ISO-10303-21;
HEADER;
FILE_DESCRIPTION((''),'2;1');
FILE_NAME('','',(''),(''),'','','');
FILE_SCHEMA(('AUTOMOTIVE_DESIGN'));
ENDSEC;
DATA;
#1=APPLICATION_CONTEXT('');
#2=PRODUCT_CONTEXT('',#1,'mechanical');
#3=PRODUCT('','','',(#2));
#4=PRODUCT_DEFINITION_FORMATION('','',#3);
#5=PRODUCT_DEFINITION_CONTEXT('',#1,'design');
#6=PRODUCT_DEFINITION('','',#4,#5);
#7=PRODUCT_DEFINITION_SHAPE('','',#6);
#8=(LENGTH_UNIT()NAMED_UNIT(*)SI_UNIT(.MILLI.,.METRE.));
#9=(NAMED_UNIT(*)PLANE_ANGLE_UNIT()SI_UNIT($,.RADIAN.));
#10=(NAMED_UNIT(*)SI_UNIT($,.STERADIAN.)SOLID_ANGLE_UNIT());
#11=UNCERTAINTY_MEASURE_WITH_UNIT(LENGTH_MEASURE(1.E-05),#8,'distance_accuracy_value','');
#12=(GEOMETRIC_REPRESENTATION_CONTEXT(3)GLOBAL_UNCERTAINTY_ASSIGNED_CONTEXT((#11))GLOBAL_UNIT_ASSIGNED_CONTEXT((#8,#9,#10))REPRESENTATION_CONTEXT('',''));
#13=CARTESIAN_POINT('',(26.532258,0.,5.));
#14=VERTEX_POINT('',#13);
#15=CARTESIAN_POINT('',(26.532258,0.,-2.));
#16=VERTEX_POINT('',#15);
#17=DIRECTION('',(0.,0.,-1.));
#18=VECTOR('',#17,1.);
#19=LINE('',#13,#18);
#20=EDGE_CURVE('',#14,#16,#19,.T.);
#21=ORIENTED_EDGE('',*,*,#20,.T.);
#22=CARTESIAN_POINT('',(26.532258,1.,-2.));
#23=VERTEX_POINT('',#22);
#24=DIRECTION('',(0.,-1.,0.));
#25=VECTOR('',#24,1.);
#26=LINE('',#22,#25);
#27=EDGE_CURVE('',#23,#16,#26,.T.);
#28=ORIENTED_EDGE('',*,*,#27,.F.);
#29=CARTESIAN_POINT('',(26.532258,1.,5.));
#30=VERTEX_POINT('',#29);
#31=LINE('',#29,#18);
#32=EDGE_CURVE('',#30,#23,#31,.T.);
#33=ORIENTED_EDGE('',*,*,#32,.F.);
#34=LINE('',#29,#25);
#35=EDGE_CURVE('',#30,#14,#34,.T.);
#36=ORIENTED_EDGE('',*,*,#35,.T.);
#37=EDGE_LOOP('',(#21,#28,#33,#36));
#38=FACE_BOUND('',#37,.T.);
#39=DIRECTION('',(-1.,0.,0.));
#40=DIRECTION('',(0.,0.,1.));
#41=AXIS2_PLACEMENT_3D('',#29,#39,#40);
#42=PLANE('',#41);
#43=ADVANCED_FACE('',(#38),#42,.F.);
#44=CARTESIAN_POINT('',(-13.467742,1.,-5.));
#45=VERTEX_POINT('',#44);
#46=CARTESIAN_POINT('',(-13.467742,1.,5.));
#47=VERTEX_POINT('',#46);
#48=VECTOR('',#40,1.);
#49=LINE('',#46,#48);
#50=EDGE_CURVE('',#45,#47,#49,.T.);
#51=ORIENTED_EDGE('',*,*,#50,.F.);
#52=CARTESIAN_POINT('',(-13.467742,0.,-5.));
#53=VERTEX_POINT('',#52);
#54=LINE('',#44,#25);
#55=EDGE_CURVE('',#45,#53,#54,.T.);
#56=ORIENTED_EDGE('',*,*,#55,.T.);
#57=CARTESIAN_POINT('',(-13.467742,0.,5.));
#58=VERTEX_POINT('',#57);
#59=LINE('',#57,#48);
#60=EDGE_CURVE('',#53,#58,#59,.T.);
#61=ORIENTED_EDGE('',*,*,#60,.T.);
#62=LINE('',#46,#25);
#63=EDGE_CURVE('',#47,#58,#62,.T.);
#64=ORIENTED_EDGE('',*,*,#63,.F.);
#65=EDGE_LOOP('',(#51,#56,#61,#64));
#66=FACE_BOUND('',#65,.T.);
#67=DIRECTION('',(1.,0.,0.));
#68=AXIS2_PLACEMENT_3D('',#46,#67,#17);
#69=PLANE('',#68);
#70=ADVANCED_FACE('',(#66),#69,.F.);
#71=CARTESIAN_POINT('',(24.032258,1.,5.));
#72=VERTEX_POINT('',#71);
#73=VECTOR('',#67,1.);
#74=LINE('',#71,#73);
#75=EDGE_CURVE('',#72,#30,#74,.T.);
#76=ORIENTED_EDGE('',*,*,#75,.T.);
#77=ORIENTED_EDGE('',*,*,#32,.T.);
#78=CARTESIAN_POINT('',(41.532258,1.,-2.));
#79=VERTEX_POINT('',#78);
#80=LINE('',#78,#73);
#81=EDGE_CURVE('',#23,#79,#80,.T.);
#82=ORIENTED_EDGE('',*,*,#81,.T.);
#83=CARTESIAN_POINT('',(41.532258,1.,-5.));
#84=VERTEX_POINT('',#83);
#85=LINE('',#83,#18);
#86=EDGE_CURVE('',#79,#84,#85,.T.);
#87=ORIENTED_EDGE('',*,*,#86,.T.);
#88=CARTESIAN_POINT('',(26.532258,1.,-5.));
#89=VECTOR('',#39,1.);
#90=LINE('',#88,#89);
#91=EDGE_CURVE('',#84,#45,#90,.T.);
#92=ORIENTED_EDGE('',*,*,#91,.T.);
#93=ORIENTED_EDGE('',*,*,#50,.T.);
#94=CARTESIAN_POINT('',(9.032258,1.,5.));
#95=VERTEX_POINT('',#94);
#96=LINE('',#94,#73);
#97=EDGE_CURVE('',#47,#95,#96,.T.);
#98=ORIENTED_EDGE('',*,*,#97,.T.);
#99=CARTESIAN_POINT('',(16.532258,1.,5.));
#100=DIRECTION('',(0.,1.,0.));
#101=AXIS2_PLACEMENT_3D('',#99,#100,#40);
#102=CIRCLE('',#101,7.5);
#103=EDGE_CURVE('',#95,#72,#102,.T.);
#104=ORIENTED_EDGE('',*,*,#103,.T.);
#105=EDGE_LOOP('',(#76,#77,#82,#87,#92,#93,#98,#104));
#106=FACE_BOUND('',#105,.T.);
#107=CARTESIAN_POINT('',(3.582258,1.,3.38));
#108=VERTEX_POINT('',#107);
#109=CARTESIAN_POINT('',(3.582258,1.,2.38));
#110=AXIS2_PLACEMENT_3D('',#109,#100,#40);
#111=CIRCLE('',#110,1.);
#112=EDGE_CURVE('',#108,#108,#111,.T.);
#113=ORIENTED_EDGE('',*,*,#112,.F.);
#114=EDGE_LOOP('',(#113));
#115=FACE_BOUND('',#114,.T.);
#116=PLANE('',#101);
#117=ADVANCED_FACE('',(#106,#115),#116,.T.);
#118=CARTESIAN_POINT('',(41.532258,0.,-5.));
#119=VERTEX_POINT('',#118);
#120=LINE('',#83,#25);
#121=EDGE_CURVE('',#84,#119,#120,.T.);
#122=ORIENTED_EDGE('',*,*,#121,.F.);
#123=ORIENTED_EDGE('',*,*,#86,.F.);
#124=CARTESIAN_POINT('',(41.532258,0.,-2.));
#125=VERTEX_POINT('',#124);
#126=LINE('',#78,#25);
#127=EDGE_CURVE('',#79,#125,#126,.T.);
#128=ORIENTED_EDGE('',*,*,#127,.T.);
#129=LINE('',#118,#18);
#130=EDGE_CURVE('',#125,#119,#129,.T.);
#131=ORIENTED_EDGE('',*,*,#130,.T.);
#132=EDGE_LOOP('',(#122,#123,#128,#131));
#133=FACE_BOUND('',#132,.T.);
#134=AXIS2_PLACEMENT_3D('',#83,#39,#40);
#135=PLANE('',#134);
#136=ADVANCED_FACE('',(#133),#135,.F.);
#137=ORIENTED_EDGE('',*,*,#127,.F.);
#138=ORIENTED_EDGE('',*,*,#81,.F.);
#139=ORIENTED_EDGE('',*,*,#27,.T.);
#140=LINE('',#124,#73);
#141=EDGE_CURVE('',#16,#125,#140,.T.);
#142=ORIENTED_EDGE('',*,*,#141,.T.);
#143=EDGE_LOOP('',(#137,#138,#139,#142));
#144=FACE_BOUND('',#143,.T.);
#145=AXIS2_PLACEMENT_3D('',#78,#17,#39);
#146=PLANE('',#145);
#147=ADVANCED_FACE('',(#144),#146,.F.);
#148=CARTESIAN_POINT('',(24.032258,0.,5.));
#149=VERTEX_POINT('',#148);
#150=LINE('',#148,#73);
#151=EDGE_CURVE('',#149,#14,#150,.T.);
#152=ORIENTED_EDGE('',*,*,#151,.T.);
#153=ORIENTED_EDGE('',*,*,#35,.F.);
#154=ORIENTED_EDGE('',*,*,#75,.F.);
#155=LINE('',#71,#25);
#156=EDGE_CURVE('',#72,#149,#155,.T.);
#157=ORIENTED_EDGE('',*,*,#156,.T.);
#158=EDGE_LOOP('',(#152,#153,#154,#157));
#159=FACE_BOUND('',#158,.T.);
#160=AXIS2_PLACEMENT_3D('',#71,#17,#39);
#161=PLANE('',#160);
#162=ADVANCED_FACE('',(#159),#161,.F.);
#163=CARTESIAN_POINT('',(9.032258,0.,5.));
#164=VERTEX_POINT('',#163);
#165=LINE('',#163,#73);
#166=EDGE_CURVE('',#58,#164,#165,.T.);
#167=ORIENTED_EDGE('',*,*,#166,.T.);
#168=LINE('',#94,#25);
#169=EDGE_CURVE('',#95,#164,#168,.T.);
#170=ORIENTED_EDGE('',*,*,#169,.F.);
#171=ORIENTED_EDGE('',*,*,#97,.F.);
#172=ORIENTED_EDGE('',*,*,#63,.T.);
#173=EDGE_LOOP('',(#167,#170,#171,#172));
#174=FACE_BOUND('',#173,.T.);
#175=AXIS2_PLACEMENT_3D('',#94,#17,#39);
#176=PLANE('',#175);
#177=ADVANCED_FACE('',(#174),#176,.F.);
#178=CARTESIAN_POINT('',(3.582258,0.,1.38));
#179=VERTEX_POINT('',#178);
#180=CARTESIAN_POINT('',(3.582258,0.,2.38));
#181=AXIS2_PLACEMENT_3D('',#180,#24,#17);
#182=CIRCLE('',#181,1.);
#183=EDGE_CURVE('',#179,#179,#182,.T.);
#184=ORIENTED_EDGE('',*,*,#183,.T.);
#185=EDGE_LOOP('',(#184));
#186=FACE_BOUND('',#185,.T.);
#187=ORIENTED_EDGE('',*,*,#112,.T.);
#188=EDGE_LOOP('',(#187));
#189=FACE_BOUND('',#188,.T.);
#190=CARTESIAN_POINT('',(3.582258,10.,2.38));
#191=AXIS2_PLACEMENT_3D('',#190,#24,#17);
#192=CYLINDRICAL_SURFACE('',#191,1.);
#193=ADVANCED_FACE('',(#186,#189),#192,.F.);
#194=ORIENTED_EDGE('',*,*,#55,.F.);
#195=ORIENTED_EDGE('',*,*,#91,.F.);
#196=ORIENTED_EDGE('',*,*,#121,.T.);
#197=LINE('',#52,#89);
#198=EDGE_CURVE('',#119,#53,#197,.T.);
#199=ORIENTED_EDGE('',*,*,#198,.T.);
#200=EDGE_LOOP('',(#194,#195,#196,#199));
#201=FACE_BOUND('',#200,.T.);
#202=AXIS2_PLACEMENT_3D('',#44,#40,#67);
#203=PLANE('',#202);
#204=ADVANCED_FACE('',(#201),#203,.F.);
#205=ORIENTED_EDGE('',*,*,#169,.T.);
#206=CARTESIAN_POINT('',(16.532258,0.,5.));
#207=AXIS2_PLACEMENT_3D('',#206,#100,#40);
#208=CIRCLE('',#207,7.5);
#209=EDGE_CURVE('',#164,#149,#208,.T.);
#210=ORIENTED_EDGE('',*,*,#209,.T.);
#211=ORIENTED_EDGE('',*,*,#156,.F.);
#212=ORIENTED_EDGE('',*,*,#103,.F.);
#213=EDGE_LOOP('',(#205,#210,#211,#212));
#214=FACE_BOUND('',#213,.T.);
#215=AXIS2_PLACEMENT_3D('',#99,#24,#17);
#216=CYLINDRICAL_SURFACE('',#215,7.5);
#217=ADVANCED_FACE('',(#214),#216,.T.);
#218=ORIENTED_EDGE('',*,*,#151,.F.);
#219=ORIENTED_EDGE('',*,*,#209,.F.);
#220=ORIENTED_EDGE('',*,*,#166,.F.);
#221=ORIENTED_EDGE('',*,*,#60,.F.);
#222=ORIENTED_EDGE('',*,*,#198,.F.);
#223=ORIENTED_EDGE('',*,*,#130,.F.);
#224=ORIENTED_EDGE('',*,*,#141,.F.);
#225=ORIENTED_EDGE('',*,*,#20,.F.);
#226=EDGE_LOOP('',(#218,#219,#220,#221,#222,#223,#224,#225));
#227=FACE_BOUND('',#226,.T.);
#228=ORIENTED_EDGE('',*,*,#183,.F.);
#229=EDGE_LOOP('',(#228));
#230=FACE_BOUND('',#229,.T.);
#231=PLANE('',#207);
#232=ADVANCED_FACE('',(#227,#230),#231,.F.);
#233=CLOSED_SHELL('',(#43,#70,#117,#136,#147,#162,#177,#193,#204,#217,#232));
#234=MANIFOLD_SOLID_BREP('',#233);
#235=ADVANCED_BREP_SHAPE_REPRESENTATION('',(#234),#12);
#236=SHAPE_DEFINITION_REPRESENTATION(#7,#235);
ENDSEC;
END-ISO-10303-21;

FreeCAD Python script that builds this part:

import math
import FreeCAD as App
import Part
import Sketcher
from FreeCAD import Vector
Q = App.Units.Quantity

doc = App.newDocument("Part")
params = doc.addObject("Spreadsheet::Sheet", "Params")
for row, (alias, value) in enumerate([
    ("sketch1_radius", "7.5 mm"),
    ("sketch1_width", "15 mm"),
    ("sketch1_width2", "55 mm"),
    ("sketch1_height", "7 mm"),
    ("sketch1_height2", "3 mm"),
    ("pad1_length", "1 mm"),
    ("sketch2_diameter", "2 mm"),
    ("pocket1_length", "10 mm"),
], start=1):
    params.set(f"A{row}", alias)
    params.set(f"B{row}", "=" + value)
    params.setAlias(f"B{row}", alias)

body = doc.addObject("PartDesign::Body", "Body")

# Sketch on XZ plane
sketch1 = body.newObject("Sketcher::SketchObject", "Sketch")
sketch1.AttachmentSupport = (doc.getObject("XZ_Plane"), [""])
sketch1.MapMode = "FlatFace"
sketch1.addGeometry([
    Part.LineSegment(Vector(24, 5, 0), Vector(26.5, 5, 0)),  # 0
    Part.LineSegment(Vector(26.5, 5, 0), Vector(26.5, -2, 0)),  # 1
    Part.LineSegment(Vector(26.5, -2, 0), Vector(41.5, -2, 0)),  # 2
    Part.LineSegment(Vector(41.5, -2, 0), Vector(41.5, -5, 0)),  # 3
    Part.LineSegment(Vector(41.5, -5, 0), Vector(-13.5, -5, 0)),  # 4
    Part.LineSegment(Vector(-13.5, -5, 0), Vector(-13.5, 5, 0)),  # 5
    Part.LineSegment(Vector(-13.5, 5, 0), Vector(9, 5, 0)),  # 6
    Part.ArcOfCircle(Part.Circle(Vector(16.5, 5, 0), Vector(0, 0, 1), 7.5), math.radians(0), math.radians(180)),  # 7
], False)
sketch1.addConstraint([
    Sketcher.Constraint("Coincident", 0, 2, 1, 1),
    Sketcher.Constraint("Coincident", 1, 2, 2, 1),
    Sketcher.Constraint("Coincident", 2, 2, 3, 1),
    Sketcher.Constraint("Coincident", 3, 2, 4, 1),
    Sketcher.Constraint("Coincident", 4, 2, 5, 1),
    Sketcher.Constraint("Coincident", 5, 2, 6, 1),
    Sketcher.Constraint("Coincident", 6, 2, 7, 2),
    Sketcher.Constraint("Coincident", 7, 1, 0, 1),
    Sketcher.Constraint("Horizontal", 0),
    Sketcher.Constraint("Vertical", 1),
    Sketcher.Constraint("Horizontal", 2),
    Sketcher.Constraint("Vertical", 3),
    Sketcher.Constraint("Horizontal", 4),
    Sketcher.Constraint("Vertical", 5),
    Sketcher.Constraint("Horizontal", 6),
    Sketcher.Constraint("Horizontal", 7, 3, 0, 2),
    Sketcher.Constraint("Horizontal", 0, 2, 5, 2),
    Sketcher.Constraint("Radius", 7, Q("7.5 mm")),
    Sketcher.Constraint("DistanceX", 2, 1, 2, 2, Q("15 mm")),
    Sketcher.Constraint("DistanceX", 4, 2, 4, 1, Q("55 mm")),
    Sketcher.Constraint("DistanceY", 1, 2, 1, 1, Q("7 mm")),
    Sketcher.Constraint("DistanceY", 3, 2, 3, 1, Q("3 mm")),
    Sketcher.Constraint("DistanceX", 0, 1, 0, 2, Q("2.5 mm")),
    Sketcher.Constraint("DistanceY", -1, 1, 7, 3, Q("5 mm")),
    Sketcher.Constraint("DistanceX", -1, 1, 7, 3, Q("16.532258 mm")),
])
sketch1.setExpression("Constraints[17]", "Params.sketch1_radius")
sketch1.setExpression("Constraints[18]", "Params.sketch1_width")
sketch1.setExpression("Constraints[19]", "Params.sketch1_width2")
sketch1.setExpression("Constraints[20]", "Params.sketch1_height")
sketch1.setExpression("Constraints[21]", "Params.sketch1_height2")
pad1 = body.newObject("PartDesign::Pad", "Pad")
pad1.Profile = sketch1
pad1.setExpression("Length", "Params.pad1_length")
pad1.Reversed = True

# Sketch on XZ plane
sketch2 = body.newObject("Sketcher::SketchObject", "Sketch001")
sketch2.AttachmentSupport = (doc.getObject("XZ_Plane"), [""])
sketch2.MapMode = "FlatFace"
sketch2.addGeometry(Part.Circle(Vector(3.6, 2.4, 0), Vector(0, 0, 1), 1), False)
sketch2.addConstraint([
    Sketcher.Constraint("Diameter", 0, Q("2 mm")),
    Sketcher.Constraint("DistanceY", -1, 1, 0, 3, Q("2.38 mm")),
    Sketcher.Constraint("DistanceX", -1, 1, 0, 3, Q("3.582258 mm")),
])
sketch2.setExpression("Constraints[0]", "Params.sketch2_diameter")
pocket1 = body.newObject("PartDesign::Pocket", "Pocket")
pocket1.Profile = sketch2
pocket1.setExpression("Length", "Params.pocket1_length")

doc.recompute()
